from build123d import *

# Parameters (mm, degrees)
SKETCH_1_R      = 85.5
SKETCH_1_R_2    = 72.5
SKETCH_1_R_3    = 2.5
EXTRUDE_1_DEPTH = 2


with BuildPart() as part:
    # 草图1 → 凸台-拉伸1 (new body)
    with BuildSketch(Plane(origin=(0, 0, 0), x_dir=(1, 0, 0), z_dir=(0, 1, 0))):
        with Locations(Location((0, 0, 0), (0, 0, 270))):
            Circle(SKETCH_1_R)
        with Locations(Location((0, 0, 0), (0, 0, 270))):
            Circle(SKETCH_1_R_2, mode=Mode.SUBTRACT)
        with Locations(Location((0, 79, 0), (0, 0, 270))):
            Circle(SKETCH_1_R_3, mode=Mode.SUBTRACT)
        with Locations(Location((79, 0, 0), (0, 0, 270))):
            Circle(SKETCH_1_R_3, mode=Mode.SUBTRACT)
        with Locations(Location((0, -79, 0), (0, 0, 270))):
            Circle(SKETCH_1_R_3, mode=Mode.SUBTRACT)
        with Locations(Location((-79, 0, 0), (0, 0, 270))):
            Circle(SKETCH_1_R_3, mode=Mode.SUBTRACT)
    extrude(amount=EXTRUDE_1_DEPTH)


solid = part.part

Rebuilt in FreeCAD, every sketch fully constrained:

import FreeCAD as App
import Part
import Sketcher
from FreeCAD import Vector
Q = App.Units.Quantity

doc = App.newDocument("Part")
body = doc.addObject("PartDesign::Body", "Body")

# Sketch on XZ plane
sketch1 = doc.addObject("Sketcher::SketchObject", "Sketch")
body.addObject(sketch1)
sketch1.AttachmentSupport = (doc.XZ_Plane, [""])
sketch1.MapMode = "FlatFace"
sketch1.addGeometry([
    Part.Circle(Vector(0, 0, 0), Vector(0, 0, 1), 85.5),  # 0
    Part.Circle(Vector(0, -79, 0), Vector(0, 0, 1), 2.5),  # 1
    Part.Circle(Vector(-79, 0, 0), Vector(0, 0, 1), 2.5),  # 2
    Part.Circle(Vector(79, 0, 0), Vector(0, 0, 1), 2.5),  # 3
    Part.Circle(Vector(0, 0, 0), Vector(0, 0, 1), 72.5),  # 4
    Part.Circle(Vector(0, 79, 0), Vector(0, 0, 1), 2.5),  # 5
], False)
sketch1.addConstraint([
    Sketcher.Constraint("Coincident", 0, 3, -1, 1),
    Sketcher.Constraint("Coincident", 4, 3, -1, 1),
    Sketcher.Constraint("Equal", 1, 2),
    Sketcher.Constraint("Equal", 2, 3),
    Sketcher.Constraint("Equal", 3, 5),
    Sketcher.Constraint("Symmetric", 2, 3, 3, 3, -1, 1),
    Sketcher.Constraint("Symmetric", 1, 3, 5, 3, -1, 1),
    Sketcher.Constraint("PointOnObject", 1, 3, -2),
    Sketcher.Constraint("PointOnObject", 2, 3, -1),
    Sketcher.Constraint("Diameter", 0, Q("171 mm")),
    Sketcher.Constraint("Diameter", 1, Q("5 mm")),
    Sketcher.Constraint("Diameter", 4, Q("145 mm")),
    Sketcher.Constraint("DistanceY", 1, 3, -1, 1, Q("79 mm")),
    Sketcher.Constraint("DistanceX", 2, 3, -1, 1, Q("79 mm")),
])
pad1 = doc.addObject("PartDesign::Pad", "Pad")
body.addObject(pad1)
pad1.Profile = sketch1
pad1.Length = 2
pad1.Reversed = True

doc.recompute()
